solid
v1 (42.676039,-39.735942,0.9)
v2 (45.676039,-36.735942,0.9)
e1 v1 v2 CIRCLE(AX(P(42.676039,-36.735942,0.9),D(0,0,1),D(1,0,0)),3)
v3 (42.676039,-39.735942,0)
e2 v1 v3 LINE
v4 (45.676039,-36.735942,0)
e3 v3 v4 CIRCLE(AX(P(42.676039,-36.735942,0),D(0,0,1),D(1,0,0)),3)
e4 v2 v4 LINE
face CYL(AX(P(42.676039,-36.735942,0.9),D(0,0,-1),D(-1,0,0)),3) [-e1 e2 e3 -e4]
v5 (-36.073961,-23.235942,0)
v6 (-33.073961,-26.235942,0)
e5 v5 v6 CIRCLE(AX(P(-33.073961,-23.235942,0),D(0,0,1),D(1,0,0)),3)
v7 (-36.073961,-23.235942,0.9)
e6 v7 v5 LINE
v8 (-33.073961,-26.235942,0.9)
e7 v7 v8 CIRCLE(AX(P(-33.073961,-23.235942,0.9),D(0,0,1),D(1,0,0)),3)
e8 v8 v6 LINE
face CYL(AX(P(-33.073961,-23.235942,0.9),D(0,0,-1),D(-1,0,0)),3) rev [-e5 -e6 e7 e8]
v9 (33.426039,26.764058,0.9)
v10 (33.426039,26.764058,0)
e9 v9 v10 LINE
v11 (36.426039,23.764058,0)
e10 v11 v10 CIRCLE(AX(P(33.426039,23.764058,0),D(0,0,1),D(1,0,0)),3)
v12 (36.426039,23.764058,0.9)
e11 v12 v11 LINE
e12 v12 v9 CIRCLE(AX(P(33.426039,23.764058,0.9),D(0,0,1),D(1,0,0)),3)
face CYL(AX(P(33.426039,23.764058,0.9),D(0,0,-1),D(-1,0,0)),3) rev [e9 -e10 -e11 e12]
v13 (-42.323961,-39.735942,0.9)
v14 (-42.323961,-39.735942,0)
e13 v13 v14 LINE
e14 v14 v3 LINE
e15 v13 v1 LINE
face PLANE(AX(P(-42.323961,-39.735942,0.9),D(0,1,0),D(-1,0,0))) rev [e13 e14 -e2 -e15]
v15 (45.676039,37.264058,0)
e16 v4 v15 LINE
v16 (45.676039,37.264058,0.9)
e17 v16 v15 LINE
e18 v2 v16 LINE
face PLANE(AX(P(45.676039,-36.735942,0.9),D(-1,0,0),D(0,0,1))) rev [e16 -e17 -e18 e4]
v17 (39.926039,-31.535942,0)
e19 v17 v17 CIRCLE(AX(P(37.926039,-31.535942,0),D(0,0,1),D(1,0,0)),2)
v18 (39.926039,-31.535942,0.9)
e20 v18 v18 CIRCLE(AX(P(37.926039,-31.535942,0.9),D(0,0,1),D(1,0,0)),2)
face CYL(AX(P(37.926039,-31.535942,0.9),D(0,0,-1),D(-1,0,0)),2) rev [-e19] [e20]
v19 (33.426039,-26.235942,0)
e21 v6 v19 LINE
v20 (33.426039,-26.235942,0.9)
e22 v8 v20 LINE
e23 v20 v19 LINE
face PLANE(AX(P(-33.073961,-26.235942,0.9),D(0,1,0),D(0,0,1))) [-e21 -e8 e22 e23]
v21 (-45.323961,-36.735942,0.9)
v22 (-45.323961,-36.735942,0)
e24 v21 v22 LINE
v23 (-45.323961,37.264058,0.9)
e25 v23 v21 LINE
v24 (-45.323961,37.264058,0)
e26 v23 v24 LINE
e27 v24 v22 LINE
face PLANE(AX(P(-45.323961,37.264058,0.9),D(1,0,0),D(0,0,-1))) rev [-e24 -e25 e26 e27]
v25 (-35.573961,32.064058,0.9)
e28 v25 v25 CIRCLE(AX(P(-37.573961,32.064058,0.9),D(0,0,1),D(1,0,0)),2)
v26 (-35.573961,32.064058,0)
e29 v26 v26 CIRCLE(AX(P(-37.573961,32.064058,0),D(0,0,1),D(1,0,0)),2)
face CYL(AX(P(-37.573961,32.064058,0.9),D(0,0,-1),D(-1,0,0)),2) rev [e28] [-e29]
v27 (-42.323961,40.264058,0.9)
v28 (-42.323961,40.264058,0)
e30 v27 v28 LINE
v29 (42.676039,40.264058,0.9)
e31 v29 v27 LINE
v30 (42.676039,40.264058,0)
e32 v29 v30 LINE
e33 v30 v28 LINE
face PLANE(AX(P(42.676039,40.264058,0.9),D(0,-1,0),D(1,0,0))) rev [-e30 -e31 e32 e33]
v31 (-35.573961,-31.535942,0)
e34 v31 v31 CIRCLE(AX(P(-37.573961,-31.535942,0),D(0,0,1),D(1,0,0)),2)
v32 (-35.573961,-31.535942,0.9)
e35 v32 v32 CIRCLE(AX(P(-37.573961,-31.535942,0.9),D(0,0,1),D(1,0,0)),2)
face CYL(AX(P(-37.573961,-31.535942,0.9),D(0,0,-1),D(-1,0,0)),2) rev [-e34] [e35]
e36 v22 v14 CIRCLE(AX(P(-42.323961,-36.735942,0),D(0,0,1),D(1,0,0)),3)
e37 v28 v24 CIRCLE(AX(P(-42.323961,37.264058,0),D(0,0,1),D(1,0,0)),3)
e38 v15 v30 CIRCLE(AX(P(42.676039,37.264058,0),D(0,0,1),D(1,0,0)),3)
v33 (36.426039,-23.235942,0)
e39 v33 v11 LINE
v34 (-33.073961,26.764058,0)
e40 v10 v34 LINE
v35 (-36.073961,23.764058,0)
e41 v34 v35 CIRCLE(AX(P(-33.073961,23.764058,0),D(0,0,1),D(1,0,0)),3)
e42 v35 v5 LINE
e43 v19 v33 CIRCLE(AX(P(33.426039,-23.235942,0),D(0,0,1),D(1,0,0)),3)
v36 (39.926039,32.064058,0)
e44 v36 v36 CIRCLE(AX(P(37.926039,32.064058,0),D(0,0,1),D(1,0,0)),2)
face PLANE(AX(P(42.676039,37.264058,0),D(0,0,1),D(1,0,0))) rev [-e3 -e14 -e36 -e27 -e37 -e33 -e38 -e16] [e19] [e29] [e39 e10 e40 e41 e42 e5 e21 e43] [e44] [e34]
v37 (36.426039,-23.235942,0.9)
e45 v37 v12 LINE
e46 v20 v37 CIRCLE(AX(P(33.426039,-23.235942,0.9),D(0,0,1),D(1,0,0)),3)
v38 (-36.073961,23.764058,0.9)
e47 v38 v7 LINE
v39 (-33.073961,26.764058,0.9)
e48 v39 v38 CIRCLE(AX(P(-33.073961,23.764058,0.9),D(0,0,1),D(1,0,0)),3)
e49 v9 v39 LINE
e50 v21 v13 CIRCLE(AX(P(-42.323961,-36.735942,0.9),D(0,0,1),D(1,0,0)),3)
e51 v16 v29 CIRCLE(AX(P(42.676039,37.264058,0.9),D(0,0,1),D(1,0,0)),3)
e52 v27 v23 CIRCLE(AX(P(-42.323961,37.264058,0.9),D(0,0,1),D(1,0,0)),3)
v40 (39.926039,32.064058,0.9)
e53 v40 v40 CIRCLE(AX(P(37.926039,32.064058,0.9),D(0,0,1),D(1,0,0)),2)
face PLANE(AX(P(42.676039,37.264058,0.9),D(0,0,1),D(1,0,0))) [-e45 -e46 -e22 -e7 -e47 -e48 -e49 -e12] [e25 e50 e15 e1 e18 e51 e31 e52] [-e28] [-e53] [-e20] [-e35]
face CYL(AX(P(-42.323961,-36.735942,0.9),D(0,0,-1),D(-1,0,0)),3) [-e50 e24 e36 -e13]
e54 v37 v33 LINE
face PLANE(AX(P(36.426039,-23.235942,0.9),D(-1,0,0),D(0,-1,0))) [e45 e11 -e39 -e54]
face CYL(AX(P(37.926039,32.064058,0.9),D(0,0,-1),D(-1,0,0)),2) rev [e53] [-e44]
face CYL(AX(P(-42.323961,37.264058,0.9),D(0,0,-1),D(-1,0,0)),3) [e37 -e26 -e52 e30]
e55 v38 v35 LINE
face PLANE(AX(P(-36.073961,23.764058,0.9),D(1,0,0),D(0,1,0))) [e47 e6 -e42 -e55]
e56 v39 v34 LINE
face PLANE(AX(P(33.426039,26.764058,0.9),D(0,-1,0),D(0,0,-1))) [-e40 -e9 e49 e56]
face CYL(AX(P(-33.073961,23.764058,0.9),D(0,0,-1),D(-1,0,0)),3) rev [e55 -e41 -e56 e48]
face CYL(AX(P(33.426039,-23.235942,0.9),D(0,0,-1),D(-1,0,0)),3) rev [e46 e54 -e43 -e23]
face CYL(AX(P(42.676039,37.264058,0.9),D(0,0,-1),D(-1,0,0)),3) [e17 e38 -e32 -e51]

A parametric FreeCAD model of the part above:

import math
import FreeCAD as App
import Part
import Sketcher

V = App.Vector
Q = App.Units.Quantity

doc = App.newDocument("Part")
body = doc.addObject("PartDesign::Body", "Body")

sketch1 = body.newObject("Sketcher::SketchObject", "Sketch")
sketch1.AttachmentSupport = (doc.getObject("XY_Plane"), [""])
sketch1.MapMode = "FlatFace"
sketch1.addGeometry([
    Part.LineSegment(V(-45.323961, 37.264058, 0), V(-45.323961, -36.735942, 0)),
    Part.ArcOfCircle(Part.Circle(V(-42.323961, -36.735942, 0), V(0, 0, 1), 3), math.radians(180), math.radians(270)),
    Part.LineSegment(V(-42.323961, -39.735942, 0), V(42.676039, -39.735942, 0)),
    Part.ArcOfCircle(Part.Circle(V(42.676039, -36.735942, 0), V(0, 0, 1), 3), math.radians(-90), math.radians(0)),
    Part.LineSegment(V(45.676039, -36.735942, 0), V(45.676039, 37.264058, 0)),
    Part.ArcOfCircle(Part.Circle(V(42.676039, 37.264058, 0), V(0, 0, 1), 3), math.radians(0), math.radians(90)),
    Part.LineSegment(V(42.676039, 40.264058, 0), V(-42.323961, 40.264058, 0)),
    Part.ArcOfCircle(Part.Circle(V(-42.323961, 37.264058, 0), V(0, 0, 1), 3), math.radians(90), math.radians(180)),
    Part.Circle(V(-37.573961, -31.535942, 0), V(0, 0, 1), 2),
    Part.Circle(V(37.926039, -31.535942, 0), V(0, 0, 1), 2),
    Part.Circle(V(-37.573961, 32.064058, 0), V(0, 0, 1), 2),
    Part.LineSegment(V(33.426039, -26.235942, 0), V(-33.073961, -26.235942, 0)),
    Part.ArcOfCircle(Part.Circle(V(-33.073961, -23.235942, 0), V(0, 0, 1), 3), math.radians(180), math.radians(270)),
    Part.LineSegment(V(-36.073961, -23.235942, 0), V(-36.073961, 23.764058, 0)),
    Part.ArcOfCircle(Part.Circle(V(-33.073961, 23.764058, 0), V(0, 0, 1), 3), math.radians(90), math.radians(180)),
    Part.LineSegment(V(-33.073961, 26.764058, 0), V(33.426039, 26.764058, 0)),
    Part.ArcOfCircle(Part.Circle(V(33.426039, 23.764058, 0), V(0, 0, 1), 3), math.radians(0), math.radians(90)),
    Part.LineSegment(V(36.426039, 23.764058, 0), V(36.426039, -23.235942, 0)),
    Part.ArcOfCircle(Part.Circle(V(33.426039, -23.235942, 0), V(0, 0, 1), 3), math.radians(-90), math.radians(0)),
    Part.Circle(V(37.926039, 32.064058, 0), V(0, 0, 1), 2),
], False)
sketch1.addConstraint([
    Sketcher.Constraint("Tangent", 0, 2, 1, 1),
    Sketcher.Constraint("Tangent", 1, 2, 2, 1),
    Sketcher.Constraint("Tangent", 2, 2, 3, 1),
    Sketcher.Constraint("Tangent", 3, 2, 4, 1),
    Sketcher.Constraint("Tangent", 4, 2, 5, 1),
    Sketcher.Constraint("Tangent", 5, 2, 6, 1),
    Sketcher.Constraint("Tangent", 6, 2, 7, 1),
    Sketcher.Constraint("Tangent", 7, 2, 0, 1),
    Sketcher.Constraint("Tangent", 11, 2, 12, 2),
    Sketcher.Constraint("Tangent", 12, 1, 13, 1),
    Sketcher.Constraint("Tangent", 13, 2, 14, 2),
    Sketcher.Constraint("Tangent", 14, 1, 15, 1),
    Sketcher.Constraint("Tangent", 15, 2, 16, 2),
    Sketcher.Constraint("Tangent", 16, 1, 17, 1),
    Sketcher.Constraint("Tangent", 17, 2, 18, 2),
    Sketcher.Constraint("Tangent", 18, 1, 11, 1),
    Sketcher.Constraint("Vertical", 0),
    Sketcher.Constraint("Horizontal", 2),
    Sketcher.Constraint("Vertical", 4),
    Sketcher.Constraint("Horizontal", 6),
    Sketcher.Constraint("Horizontal", 11),
    Sketcher.Constraint("Vertical", 13),
    Sketcher.Constraint("Horizontal", 15),
    Sketcher.Constraint("Vertical", 17),
    Sketcher.Constraint("Equal", 1, 3),
    Sketcher.Constraint("Equal", 3, 5),
    Sketcher.Constraint("Equal", 5, 7),
    Sketcher.Constraint("Equal", 8, 9),
    Sketcher.Constraint("Equal", 9, 10),
    Sketcher.Constraint("Equal", 7, 12),
    Sketcher.Constraint("Equal", 12, 14),
    Sketcher.Constraint("Equal", 14, 16),
    Sketcher.Constraint("Equal", 16, 18),
    Sketcher.Constraint("Equal", 10, 19),
    Sketcher.Constraint("Horizontal", 8, 3, 9, 3),
    Sketcher.Constraint("Horizontal", 10, 3, 19, 3),
    Sketcher.Constraint("Vertical", 8, 3, 10, 3),
    Sketcher.Constraint("Vertical", 9, 3, 19, 3),
    Sketcher.Constraint("Diameter", 8, Q("4 mm")),
    Sketcher.Constraint("Radius", 1, Q("3 mm")),
    Sketcher.Constraint("DistanceX", 2, 1, 2, 2, Q("85 mm")),
    Sketcher.Constraint("DistanceY", 0, 2, 0, 1, Q("74 mm")),
    Sketcher.Constraint("DistanceY", 13, 1, 13, 2, Q("47 mm")),
    Sketcher.Constraint("DistanceX", 11, 2, 11, 1, Q("66.5 mm")),
    Sketcher.Constraint("DistanceX", 12, 3, 9, 3, Q("71 mm")),
    Sketcher.Constraint("DistanceX", 10, 3, 16, 3, Q("71 mm")),
    Sketcher.Constraint("DistanceY", 1, 3, 8, 3, Q("5.2 mm")),
    Sketcher.Constraint("DistanceY", 10, 3, 7, 3, Q("5.2 mm")),
    Sketcher.Constraint("DistanceY", 8, 3, 12, 3, Q("8.3 mm")),
    Sketcher.Constraint("DistanceX", 1, 3, 8, 3, Q("4.75 mm")),
    Sketcher.Constraint("DistanceX", 1, 3, -1, 1, Q("42.323961 mm")),
    Sketcher.Constraint("DistanceY", 1, 3, -1, 1, Q("36.735942 mm")),
])
pad1 = body.newObject("PartDesign::Pad", "Pad")
pad1.Profile = sketch1
pad1.Length = 0.9

doc.recompute()
